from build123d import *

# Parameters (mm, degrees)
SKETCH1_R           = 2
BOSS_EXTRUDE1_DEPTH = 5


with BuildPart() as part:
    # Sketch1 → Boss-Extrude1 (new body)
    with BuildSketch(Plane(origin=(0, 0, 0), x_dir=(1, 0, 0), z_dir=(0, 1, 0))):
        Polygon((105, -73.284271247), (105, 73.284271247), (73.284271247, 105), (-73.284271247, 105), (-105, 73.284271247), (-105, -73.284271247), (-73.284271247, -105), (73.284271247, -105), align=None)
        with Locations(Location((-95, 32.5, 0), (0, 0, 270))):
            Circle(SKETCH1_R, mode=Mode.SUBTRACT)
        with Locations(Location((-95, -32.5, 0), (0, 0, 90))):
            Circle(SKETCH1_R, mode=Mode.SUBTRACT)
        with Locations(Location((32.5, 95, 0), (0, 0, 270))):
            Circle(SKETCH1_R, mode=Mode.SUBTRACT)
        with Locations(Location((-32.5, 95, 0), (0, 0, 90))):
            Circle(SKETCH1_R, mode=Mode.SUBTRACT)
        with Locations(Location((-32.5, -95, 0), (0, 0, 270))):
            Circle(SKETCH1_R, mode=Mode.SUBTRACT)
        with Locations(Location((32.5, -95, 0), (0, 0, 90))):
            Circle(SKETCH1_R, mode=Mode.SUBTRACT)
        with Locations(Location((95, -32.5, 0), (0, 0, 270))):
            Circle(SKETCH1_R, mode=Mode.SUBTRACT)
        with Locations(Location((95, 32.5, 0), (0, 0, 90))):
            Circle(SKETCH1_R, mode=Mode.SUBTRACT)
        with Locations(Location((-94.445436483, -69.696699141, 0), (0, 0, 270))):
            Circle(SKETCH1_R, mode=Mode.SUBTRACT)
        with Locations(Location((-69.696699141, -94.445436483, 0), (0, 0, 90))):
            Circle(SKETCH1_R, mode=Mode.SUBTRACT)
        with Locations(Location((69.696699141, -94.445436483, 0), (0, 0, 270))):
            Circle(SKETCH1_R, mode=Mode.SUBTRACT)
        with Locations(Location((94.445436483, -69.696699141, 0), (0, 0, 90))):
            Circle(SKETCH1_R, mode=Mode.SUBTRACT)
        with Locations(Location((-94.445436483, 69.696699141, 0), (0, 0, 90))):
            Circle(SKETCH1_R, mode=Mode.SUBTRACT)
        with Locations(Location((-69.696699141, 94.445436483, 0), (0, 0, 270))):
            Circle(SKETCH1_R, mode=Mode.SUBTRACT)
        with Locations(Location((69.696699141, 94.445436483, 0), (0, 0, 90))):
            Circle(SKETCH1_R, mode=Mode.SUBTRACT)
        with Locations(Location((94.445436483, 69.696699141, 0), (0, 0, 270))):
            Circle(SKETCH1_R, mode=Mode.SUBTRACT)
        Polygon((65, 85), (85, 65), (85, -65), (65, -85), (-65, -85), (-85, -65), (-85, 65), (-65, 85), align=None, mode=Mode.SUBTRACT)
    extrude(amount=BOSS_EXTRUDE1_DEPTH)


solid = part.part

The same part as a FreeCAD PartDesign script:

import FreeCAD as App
import Part
import Sketcher

V = App.Vector
Q = App.Units.Quantity

doc = App.newDocument("Part")
params = doc.addObject("Spreadsheet::Sheet", "Params")
for row, (alias, value) in enumerate([
    ("sketch1_diameter", "4 mm"),
    ("sketch1_width", "130 mm"),
    ("pad1_length", "5 mm"),
], start=1):
    params.set(f"A{row}", alias)
    params.set(f"B{row}", "=" + value)
    params.setAlias(f"B{row}", alias)

body = doc.addObject("PartDesign::Body", "Body")

# Sketch on XZ plane
sketch1 = doc.addObject("Sketcher::SketchObject", "Sketch")
body.addObject(sketch1)
sketch1.AttachmentSupport = (doc.XZ_Plane, [""])
sketch1.MapMode = "FlatFace"
sketch1.addGeometry(Part.LineSegment(V(105, 73.284271, 0), V(105, -73.284271, 0)), False)
sketch1.addGeometry(Part.LineSegment(V(105, -73.284271, 0), V(73.284271, -105, 0)), False)
sketch1.addGeometry(Part.LineSegment(V(73.284271, -105, 0), V(-73.284271, -105, 0)), False)
sketch1.addGeometry(Part.LineSegment(V(-73.284271, -105, 0), V(-105, -73.284271, 0)), False)
sketch1.addGeometry(Part.LineSegment(V(-105, -73.284271, 0), V(-105, 73.284271, 0)), False)
sketch1.addGeometry(Part.LineSegment(V(-105, 73.284271, 0), V(-73.284271, 105, 0)), False)
sketch1.addGeometry(Part.LineSegment(V(-73.284271, 105, 0), V(73.284271, 105, 0)), False)
sketch1.addGeometry(Part.LineSegment(V(73.284271, 105, 0), V(105, 73.284271, 0)), False)
sketch1.addGeometry(Part.Circle(V(-69.696699, 94.445436, 0), V(0, 0, 1), 2), False)
sketch1.addGeometry(Part.Circle(V(-94.445436, 69.696699, 0), V(0, 0, 1), 2), False)
sketch1.addGeometry(Part.Circle(V(-32.5, 95, 0), V(0, 0, 1), 2), False)
sketch1.addGeometry(Part.Circle(V(-95, 32.5, 0), V(0, 0, 1), 2), False)
sketch1.addGeometry(Part.Circle(V(32.5, 95, 0), V(0, 0, 1), 2), False)
sketch1.addGeometry(Part.Circle(V(69.696699, 94.445436, 0), V(0, 0, 1), 2), False)
sketch1.addGeometry(Part.Circle(V(94.445436, 69.696699, 0), V(0, 0, 1), 2), False)
sketch1.addGeometry(Part.Circle(V(95, 32.5, 0), V(0, 0, 1), 2), False)
sketch1.addGeometry(Part.Circle(V(-95, -32.5, 0), V(0, 0, 1), 2), False)
sketch1.addGeometry(Part.Circle(V(-94.445436, -69.696699, 0), V(0, 0, 1), 2), False)
sketch1.addGeometry(Part.Circle(V(-69.696699, -94.445436, 0), V(0, 0, 1), 2), False)
sketch1.addGeometry(Part.Circle(V(-32.5, -95, 0), V(0, 0, 1), 2), False)
sketch1.addGeometry(Part.LineSegment(V(-65, -85, 0), V(65, -85, 0)), False)
sketch1.addGeometry(Part.LineSegment(V(65, -85, 0), V(85, -65, 0)), False)
sketch1.addGeometry(Part.LineSegment(V(85, -65, 0), V(85, 65, 0)), False)
sketch1.addGeometry(Part.LineSegment(V(85, 65, 0), V(65, 85, 0)), False)
sketch1.addGeometry(Part.LineSegment(V(65, 85, 0), V(-65, 85, 0)), False)
sketch1.addGeometry(Part.LineSegment(V(-65, 85, 0), V(-85, 65, 0)), False)
sketch1.addGeometry(Part.LineSegment(V(-85, 65, 0), V(-85, -65, 0)), False)
sketch1.addGeometry(Part.LineSegment(V(-85, -65, 0), V(-65, -85, 0)), False)
sketch1.addGeometry(Part.Circle(V(95, -32.5, 0), V(0, 0, 1), 2), False)
sketch1.addGeometry(Part.Circle(V(32.5, -95, 0), V(0, 0, 1), 2), False)
sketch1.addGeometry(Part.Circle(V(94.445436, -69.696699, 0), V(0, 0, 1), 2), False)
sketch1.addGeometry(Part.Circle(V(69.696699, -94.445436, 0), V(0, 0, 1), 2), False)
sketch1.addConstraint(Sketcher.Constraint("Coincident", 0, 2, 1, 1))
sketch1.addConstraint(Sketcher.Constraint("Coincident", 1, 2, 2, 1))
sketch1.addConstraint(Sketcher.Constraint("Coincident", 2, 2, 3, 1))
sketch1.addConstraint(Sketcher.Constraint("Coincident", 3, 2, 4, 1))
sketch1.addConstraint(Sketcher.Constraint("Coincident", 4, 2, 5, 1))
sketch1.addConstraint(Sketcher.Constraint("Coincident", 5, 2, 6, 1))
sketch1.addConstraint(Sketcher.Constraint("Coincident", 6, 2, 7, 1))
sketch1.addConstraint(Sketcher.Constraint("Coincident", 7, 2, 0, 1))
sketch1.addConstraint(Sketcher.Constraint("Coincident", 20, 2, 21, 1))
sketch1.addConstraint(Sketcher.Constraint("Coincident", 21, 2, 22, 1))
sketch1.addConstraint(Sketcher.Constraint("Coincident", 22, 2, 23, 1))
sketch1.addConstraint(Sketcher.Constraint("Coincident", 23, 2, 24, 1))
sketch1.addConstraint(Sketcher.Constraint("Coincident", 24, 2, 25, 1))
sketch1.addConstraint(Sketcher.Constraint("Coincident", 25, 2, 26, 1))
sketch1.addConstraint(Sketcher.Constraint("Coincident", 26, 2, 27, 1))
sketch1.addConstraint(Sketcher.Constraint("Coincident", 27, 2, 20, 1))
sketch1.addConstraint(Sketcher.Constraint("Vertical", 0))
sketch1.addConstraint(Sketcher.Constraint("Horizontal", 2))
sketch1.addConstraint(Sketcher.Constraint("Vertical", 4))
sketch1.addConstraint(Sketcher.Constraint("Horizontal", 6))
sketch1.addConstraint(Sketcher.Constraint("Horizontal", 20))
sketch1.addConstraint(Sketcher.Constraint("Vertical", 22))
sketch1.addConstraint(Sketcher.Constraint("Horizontal", 24))
sketch1.addConstraint(Sketcher.Constraint("Vertical", 26))
sketch1.addConstraint(Sketcher.Constraint("Equal", 8, 9))
sketch1.addConstraint(Sketcher.Constraint("Equal", 9, 10))
sketch1.addConstraint(Sketcher.Constraint("Equal", 10, 11))
sketch1.addConstraint(Sketcher.Constraint("Equal", 11, 12))
sketch1.addConstraint(Sketcher.Constraint("Equal", 12, 13))
sketch1.addConstraint(Sketcher.Constraint("Equal", 13, 14))
sketch1.addConstraint(Sketcher.Constraint("Equal", 14, 15))
sketch1.addConstraint(Sketcher.Constraint("Equal", 15, 16))
sketch1.addConstraint(Sketcher.Constraint("Equal", 16, 17))
sketch1.addConstraint(Sketcher.Constraint("Equal", 17, 18))
sketch1.addConstraint(Sketcher.Constraint("Equal", 18, 19))
sketch1.addConstraint(Sketcher.Constraint("Equal", 19, 28))
sketch1.addConstraint(Sketcher.Constraint("Equal", 28, 29))
sketch1.addConstraint(Sketcher.Constraint("Equal", 29, 30))
sketch1.addConstraint(Sketcher.Constraint("Equal", 30, 31))
sketch1.addConstraint(Sketcher.Constraint("Symmetric", 15, 3, 16, 3, -1, 1))
sketch1.addConstraint(Sketcher.Constraint("Symmetric", 14, 3, 17, 3, -1, 1))
sketch1.addConstraint(Sketcher.Constraint("Symmetric", 13, 3, 18, 3, -1, 1))
sketch1.addConstraint(Sketcher.Constraint("Symmetric", 12, 3, 19, 3, -1, 1))
sketch1.addConstraint(Sketcher.Constraint("Symmetric", 11, 3, 28, 3, -1, 1))
sketch1.addConstraint(Sketcher.Constraint("Symmetric", 10, 3, 29, 3, -1, 1))
sketch1.addConstraint(Sketcher.Constraint("Symmetric", 9, 3, 30, 3, -1, 1))
sketch1.addConstraint(Sketcher.Constraint("Symmetric", 8, 3, 31, 3, -1, 1))
sketch1.addConstraint(Sketcher.Constraint("Symmetric", 0, 2, 4, 2, -1, 1))
sketch1.addConstraint(Sketcher.Constraint("Symmetric", 1, 2, 5, 2, -1, 1))
sketch1.addConstraint(Sketcher.Constraint("Symmetric", 20, 2, 24, 2, -1, 1))
sketch1.addConstraint(Sketcher.Constraint("Symmetric", 21, 2, 25, 2, -1, 1))
sketch1.addConstraint(Sketcher.Constraint("Symmetric", 10, 3, 12, 3, -2))
sketch1.addConstraint(Sketcher.Constraint("Symmetric", 8, 3, 13, 3, -2))
sketch1.addConstraint(Sketcher.Constraint("Symmetric", 9, 3, 14, 3, -2))
sketch1.addConstraint(Sketcher.Constraint("Symmetric", 11, 3, 15, 3, -2))
sketch1.addConstraint(Sketcher.Constraint("Perpendicular", 1, 3))
sketch1.addConstraint(Sketcher.Constraint("Perpendicular", 5, 7))
sketch1.addConstraint(Sketcher.Constraint("Perpendicular", 7, 21))
sketch1.addConstraint(Sketcher.Constraint("Perpendicular", 21, 23))
sketch1.addConstraint(Sketcher.Constraint("Perpendicular", 25, 27))
sketch1.addConstraint(Sketcher.Constraint("Horizontal", 0, 2, 3, 2))
sketch1.addConstraint(Sketcher.Constraint("Horizontal", 4, 2, 7, 2))
sketch1.addConstraint(Sketcher.Constraint("Horizontal", 22, 2, 25, 2))
sketch1.addConstraint(Sketcher.Constraint("Horizontal", 21, 2, 26, 2))
sketch1.addConstraint(Sketcher.Constraint("Vertical", 2, 2, 5, 2))
sketch1.addConstraint(Sketcher.Constraint("Equal", 6, 0))
sketch1.addConstraint(Sketcher.Constraint("Equal", 24, 22))
sketch1.addConstraint(Sketcher.Constraint("Diameter", 8, Q("4 mm")))
sketch1.addConstraint(Sketcher.Constraint("DistanceX", 20, 1, 20, 2, Q("130 mm")))
sketch1.addConstraint(Sketcher.Constraint("DistanceY", -1, 1, 10, 3, Q("95 mm")))
sketch1.addConstraint(Sketcher.Constraint("DistanceX", 11, 3, -1, 1, Q("95 mm")))
sketch1.addConstraint(Sketcher.Constraint("DistanceX", -1, 1, 0, 2, Q("105 mm")))
sketch1.addConstraint(Sketcher.Constraint("DistanceY", 20, 2, -1, 1, Q("85 mm")))
sketch1.addConstraint(Sketcher.Constraint("DistanceX", 10, 3, 12, 3, Q("65 mm")))
sketch1.addConstraint(Sketcher.Constraint("DistanceY", 16, 3, 11, 3, Q("65 mm")))
sketch1.addConstraint(Sketcher.Constraint("DistanceX", 8, 3, -1, 1, Q("69.696699 mm")))
sketch1.addConstraint(Sketcher.Constraint("DistanceY", -1, 1, 9, 3, Q("69.696699 mm")))
sketch1.addConstraint(Sketcher.Constraint("DistanceX", 2, 2, 2, 1, Q("146.568542 mm")))
sketch1.addConstraint(Sketcher.Constraint("DistanceY", -1, 1, 8, 3, Q("94.445436 mm")))
sketch1.addConstraint(Sketcher.Constraint("DistanceX", 9, 3, -1, 1, Q("94.445436 mm")))
sketch1.setExpression("Constraints[67]", "Params.sketch1_diameter")
sketch1.setExpression("Constraints[68]", "Params.sketch1_width")
pad1 = doc.addObject("PartDesign::Pad", "Pad")
body.addObject(pad1)
pad1.Profile = sketch1
pad1.setExpression("Length", "Params.pad1_length")
pad1.Reversed = True

doc.recompute()
